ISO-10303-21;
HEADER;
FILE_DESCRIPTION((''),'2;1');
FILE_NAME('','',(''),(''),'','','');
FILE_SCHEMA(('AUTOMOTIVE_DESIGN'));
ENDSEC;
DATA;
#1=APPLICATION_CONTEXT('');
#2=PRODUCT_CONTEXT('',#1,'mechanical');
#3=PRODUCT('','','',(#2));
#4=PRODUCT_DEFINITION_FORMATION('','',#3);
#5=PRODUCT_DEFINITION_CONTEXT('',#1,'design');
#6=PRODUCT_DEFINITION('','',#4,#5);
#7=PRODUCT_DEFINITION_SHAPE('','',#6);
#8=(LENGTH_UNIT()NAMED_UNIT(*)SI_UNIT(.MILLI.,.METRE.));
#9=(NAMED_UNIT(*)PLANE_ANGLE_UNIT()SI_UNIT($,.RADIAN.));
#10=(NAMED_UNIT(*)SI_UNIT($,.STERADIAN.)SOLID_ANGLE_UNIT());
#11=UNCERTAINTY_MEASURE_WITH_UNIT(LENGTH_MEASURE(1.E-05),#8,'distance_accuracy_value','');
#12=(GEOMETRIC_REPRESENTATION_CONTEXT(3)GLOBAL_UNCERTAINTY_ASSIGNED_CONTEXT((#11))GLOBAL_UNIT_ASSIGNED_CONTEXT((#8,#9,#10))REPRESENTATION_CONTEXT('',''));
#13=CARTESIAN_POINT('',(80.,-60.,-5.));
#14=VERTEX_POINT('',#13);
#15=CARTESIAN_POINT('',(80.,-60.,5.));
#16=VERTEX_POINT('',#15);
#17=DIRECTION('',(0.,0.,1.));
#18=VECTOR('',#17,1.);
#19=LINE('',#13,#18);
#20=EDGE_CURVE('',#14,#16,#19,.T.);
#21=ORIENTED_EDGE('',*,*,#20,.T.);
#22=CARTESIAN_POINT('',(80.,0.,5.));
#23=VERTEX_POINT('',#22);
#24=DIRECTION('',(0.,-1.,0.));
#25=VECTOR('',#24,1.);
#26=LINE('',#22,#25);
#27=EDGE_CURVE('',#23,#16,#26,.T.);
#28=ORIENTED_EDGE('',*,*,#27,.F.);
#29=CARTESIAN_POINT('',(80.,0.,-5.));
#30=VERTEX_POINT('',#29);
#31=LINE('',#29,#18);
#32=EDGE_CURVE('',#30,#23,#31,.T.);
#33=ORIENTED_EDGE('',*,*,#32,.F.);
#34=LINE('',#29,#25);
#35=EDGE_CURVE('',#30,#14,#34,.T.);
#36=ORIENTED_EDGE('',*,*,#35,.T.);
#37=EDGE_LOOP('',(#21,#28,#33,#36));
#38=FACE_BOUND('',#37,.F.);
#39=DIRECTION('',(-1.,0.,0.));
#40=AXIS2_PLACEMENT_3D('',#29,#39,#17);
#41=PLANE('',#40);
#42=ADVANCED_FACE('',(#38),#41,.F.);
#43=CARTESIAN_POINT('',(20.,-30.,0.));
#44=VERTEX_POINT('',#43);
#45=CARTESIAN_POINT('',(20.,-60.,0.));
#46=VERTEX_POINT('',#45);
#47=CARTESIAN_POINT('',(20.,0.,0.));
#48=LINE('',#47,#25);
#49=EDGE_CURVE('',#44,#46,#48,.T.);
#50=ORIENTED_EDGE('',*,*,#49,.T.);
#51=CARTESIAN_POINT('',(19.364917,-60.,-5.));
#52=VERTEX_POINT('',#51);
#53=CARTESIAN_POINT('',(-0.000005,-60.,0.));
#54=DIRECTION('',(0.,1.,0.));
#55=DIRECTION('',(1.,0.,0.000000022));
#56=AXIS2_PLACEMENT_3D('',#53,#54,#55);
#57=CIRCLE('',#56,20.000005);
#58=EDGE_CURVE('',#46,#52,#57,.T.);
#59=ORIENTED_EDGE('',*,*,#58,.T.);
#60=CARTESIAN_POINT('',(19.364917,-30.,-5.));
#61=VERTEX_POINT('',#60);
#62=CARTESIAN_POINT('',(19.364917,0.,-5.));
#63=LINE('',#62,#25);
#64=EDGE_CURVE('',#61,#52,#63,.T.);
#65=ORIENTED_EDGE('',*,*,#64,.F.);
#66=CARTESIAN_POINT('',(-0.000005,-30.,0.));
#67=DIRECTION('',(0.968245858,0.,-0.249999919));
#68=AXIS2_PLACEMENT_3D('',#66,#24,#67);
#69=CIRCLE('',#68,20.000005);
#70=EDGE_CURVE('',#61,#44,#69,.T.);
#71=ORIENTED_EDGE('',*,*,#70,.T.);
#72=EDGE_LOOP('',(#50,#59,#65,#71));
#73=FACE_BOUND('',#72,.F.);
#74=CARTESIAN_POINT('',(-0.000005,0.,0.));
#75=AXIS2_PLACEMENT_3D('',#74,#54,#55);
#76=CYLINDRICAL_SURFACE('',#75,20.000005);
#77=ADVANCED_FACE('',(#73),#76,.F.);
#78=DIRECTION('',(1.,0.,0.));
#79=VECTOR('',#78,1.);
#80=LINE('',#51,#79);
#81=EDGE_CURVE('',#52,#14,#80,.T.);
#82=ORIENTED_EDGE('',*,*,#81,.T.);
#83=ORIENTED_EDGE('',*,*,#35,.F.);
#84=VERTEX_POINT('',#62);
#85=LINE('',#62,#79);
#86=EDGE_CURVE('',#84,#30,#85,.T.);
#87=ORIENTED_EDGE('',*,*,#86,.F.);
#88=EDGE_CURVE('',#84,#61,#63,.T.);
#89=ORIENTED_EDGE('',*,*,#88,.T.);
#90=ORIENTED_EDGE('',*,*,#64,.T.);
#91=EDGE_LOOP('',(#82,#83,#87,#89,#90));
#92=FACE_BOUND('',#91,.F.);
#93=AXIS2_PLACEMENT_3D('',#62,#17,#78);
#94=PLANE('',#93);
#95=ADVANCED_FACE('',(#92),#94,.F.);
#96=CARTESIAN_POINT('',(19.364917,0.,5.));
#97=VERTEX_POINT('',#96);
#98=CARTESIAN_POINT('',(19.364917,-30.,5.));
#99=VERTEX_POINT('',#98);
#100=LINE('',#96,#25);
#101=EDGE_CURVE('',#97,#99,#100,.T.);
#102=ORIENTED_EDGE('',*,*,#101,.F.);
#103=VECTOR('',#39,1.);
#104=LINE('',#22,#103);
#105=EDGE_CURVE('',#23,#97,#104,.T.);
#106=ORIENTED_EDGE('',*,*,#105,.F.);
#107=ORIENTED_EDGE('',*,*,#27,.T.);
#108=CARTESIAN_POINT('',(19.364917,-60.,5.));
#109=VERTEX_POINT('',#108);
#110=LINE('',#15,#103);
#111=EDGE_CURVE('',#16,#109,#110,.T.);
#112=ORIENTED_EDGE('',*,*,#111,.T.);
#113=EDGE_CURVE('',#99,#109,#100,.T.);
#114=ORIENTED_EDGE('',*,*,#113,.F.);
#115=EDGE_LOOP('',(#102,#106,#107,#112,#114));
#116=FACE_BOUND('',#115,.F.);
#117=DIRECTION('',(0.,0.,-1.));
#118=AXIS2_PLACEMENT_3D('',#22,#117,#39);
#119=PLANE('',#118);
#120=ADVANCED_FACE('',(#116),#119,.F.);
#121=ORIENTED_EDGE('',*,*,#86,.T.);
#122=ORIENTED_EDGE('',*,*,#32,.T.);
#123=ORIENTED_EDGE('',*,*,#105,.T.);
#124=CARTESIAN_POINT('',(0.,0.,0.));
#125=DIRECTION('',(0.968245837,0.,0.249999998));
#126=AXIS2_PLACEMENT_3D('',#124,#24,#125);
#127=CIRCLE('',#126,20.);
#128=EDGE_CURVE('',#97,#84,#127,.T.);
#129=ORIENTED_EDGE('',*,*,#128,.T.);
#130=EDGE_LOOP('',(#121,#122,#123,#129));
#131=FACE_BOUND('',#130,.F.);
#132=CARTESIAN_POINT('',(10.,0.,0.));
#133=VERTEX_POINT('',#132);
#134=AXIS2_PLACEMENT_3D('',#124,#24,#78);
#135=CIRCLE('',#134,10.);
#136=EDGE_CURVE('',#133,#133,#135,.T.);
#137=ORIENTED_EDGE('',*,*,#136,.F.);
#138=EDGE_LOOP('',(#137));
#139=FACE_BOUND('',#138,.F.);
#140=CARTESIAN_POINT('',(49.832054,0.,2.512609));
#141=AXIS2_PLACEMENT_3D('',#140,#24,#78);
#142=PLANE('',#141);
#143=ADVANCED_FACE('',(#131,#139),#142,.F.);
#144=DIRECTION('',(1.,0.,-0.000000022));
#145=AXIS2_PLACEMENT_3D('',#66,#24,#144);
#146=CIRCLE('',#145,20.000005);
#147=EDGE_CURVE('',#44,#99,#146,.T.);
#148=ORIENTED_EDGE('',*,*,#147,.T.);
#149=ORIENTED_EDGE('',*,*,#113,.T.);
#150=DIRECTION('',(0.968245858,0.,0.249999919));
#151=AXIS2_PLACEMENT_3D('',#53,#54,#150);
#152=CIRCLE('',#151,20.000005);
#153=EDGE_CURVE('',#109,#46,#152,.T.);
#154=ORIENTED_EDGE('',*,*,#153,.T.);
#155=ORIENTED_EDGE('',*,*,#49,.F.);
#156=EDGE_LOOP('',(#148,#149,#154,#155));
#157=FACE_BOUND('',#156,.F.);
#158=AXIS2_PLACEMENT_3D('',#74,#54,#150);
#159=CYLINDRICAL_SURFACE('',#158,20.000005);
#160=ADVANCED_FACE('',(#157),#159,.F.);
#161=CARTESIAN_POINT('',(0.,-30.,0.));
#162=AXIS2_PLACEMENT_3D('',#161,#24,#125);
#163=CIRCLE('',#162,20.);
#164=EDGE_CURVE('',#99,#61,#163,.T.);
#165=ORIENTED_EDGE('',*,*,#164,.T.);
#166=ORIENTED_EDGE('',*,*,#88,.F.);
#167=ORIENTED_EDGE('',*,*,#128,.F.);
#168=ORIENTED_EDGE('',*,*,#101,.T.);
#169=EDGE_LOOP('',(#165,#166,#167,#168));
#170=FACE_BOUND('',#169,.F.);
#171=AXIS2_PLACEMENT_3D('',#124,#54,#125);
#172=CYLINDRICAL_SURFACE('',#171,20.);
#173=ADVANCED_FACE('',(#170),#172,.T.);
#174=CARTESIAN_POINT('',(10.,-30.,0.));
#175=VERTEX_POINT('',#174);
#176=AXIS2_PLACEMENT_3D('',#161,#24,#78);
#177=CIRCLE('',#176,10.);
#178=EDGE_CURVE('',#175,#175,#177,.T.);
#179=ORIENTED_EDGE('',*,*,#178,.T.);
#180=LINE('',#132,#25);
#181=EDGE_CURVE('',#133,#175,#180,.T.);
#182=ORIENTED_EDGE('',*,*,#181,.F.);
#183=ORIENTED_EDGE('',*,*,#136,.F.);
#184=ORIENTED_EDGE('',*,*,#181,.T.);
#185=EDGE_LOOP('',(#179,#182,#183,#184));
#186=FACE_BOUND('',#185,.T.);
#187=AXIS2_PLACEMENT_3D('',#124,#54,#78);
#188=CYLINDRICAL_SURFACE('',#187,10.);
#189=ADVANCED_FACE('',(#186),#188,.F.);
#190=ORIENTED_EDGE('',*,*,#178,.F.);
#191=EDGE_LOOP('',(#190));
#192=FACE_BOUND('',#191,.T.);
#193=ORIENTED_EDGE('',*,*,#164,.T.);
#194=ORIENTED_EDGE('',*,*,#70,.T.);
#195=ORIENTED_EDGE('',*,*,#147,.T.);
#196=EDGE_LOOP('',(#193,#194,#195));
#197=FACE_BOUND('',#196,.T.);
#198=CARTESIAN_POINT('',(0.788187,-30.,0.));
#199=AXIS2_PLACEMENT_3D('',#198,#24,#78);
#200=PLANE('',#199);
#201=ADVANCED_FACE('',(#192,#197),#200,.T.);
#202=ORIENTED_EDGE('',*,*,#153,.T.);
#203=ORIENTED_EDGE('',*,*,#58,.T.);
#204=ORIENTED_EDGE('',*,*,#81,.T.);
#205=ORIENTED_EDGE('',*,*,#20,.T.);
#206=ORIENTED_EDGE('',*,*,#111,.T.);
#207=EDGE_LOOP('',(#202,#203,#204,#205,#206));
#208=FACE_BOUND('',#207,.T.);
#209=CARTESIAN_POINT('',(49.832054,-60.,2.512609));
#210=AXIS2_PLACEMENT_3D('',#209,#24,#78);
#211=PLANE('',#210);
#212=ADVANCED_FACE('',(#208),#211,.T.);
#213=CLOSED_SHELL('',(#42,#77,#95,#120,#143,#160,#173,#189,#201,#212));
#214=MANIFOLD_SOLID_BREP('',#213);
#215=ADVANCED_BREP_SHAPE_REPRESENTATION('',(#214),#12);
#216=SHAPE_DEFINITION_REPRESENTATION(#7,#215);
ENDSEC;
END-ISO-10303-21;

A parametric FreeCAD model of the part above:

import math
import FreeCAD as App
import Part
import Sketcher

V = App.Vector
Q = App.Units.Quantity

doc = App.newDocument("Part")
params = doc.addObject("Spreadsheet::Sheet", "Params")
for row, (alias, value) in enumerate([
    ("sketch1_diameter", "20 mm"),
    ("sketch1_radius", "20 mm"),
    ("pad1_length", "30 mm"),
    ("sketch2_height", "10 mm"),
    ("pad2_length", "60 mm"),
], start=1):
    params.set(f"A{row}", alias)
    params.set(f"B{row}", "=" + value)
    params.setAlias(f"B{row}", alias)

body = doc.addObject("PartDesign::Body", "Body")

# Sketch on XZ plane
sketch1 = doc.addObject("Sketcher::SketchObject", "Sketch")
body.addObject(sketch1)
sketch1.AttachmentSupport = (doc.XZ_Plane, [""])
sketch1.MapMode = "FlatFace"
sketch1.addGeometry([
    Part.ArcOfCircle(Part.Circle(V(0, 0, 0), V(0, 0, 1), 20), math.radians(-14.48), math.radians(0)),
    Part.ArcOfCircle(Part.Circle(V(0, 0, 0), V(0, 0, 1), 20), math.radians(0), math.radians(14.48)),
    Part.ArcOfCircle(Part.Circle(V(0, 0, 0), V(0, 0, 1), 20), math.radians(14), math.radians(346)),
    Part.Circle(V(0, 0, 0), V(0, 0, 1), 10),
], False)
sketch1.addConstraint([
    Sketcher.Constraint("Tangent", 0, 2, 1, 1),
    Sketcher.Constraint("Tangent", 1, 2, 2, 1),
    Sketcher.Constraint("Tangent", 2, 2, 0, 1),
    Sketcher.Constraint("Coincident", 0, 3, -1, 1),
    Sketcher.Constraint("Coincident", 3, 3, -1, 1),
    Sketcher.Constraint("PointOnObject", 0, 2, -1),
    Sketcher.Constraint("Vertical", 1, 2, 2, 2),
    Sketcher.Constraint("Diameter", 3, Q("20 mm")),
    Sketcher.Constraint("Radius", 2, Q("20 mm")),
    Sketcher.Constraint("DistanceY", -1, 1, 1, 2, Q("5 mm")),
])
sketch1.setExpression("Constraints[7]", "Params.sketch1_diameter")
sketch1.setExpression("Constraints[8]", "Params.sketch1_radius")
pad1 = doc.addObject("PartDesign::Pad", "Pad")
body.addObject(pad1)
pad1.Profile = sketch1
pad1.setExpression("Length", "Params.pad1_length")

# Sketch on XZ plane
sketch2 = doc.addObject("Sketcher::SketchObject", "Sketch001")
body.addObject(sketch2)
sketch2.AttachmentSupport = (doc.XZ_Plane, [""])
sketch2.MapMode = "FlatFace"
sketch2.addGeometry([
    Part.ArcOfCircle(Part.Circle(V(0, 0, 0), V(0, 0, 1), 20), math.radians(0), math.radians(14.48)),  # 0
    Part.ArcOfCircle(Part.Circle(V(0, 0, 0), V(0, 0, 1), 20), math.radians(-14.48), math.radians(0)),  # 1
    Part.LineSegment(V(19, -5, 0), V(80, -5, 0)),  # 2
    Part.LineSegment(V(80, -5, 0), V(80, 5, 0)),  # 3
    Part.LineSegment(V(80, 5, 0), V(19, 5, 0)),  # 4
], False)
sketch2.addConstraint([
    Sketcher.Constraint("Tangent", 0, 1, 1, 2),
    Sketcher.Constraint("Coincident", 1, 1, 2, 1),
    Sketcher.Constraint("Coincident", 2, 2, 3, 1),
    Sketcher.Constraint("Coincident", 3, 2, 4, 1),
    Sketcher.Constraint("Coincident", 4, 2, 0, 2),
    Sketcher.Constraint("Horizontal", 2),
    Sketcher.Constraint("Vertical", 3),
    Sketcher.Constraint("Horizontal", 4),
    Sketcher.Constraint("Coincident", 0, 3, -1, 1),
    Sketcher.Constraint("Equal", 0, 1),
    Sketcher.Constraint("PointOnObject", 0, 1, -1),
    Sketcher.Constraint("Vertical", 1, 1, 4, 2),
    Sketcher.Constraint("DistanceY", 3, 1, 3, 2, Q("10 mm")),
    Sketcher.Constraint("DistanceX", -1, 1, 0, 1, Q("20 mm")),
    Sketcher.Constraint("DistanceX", -1, 1, 2, 2, Q("80 mm")),
])
sketch2.setExpression("Constraints[12]", "Params.sketch2_height")
pad2 = doc.addObject("PartDesign::Pad", "Pad001")
body.addObject(pad2)
pad2.Profile = sketch2
pad2.setExpression("Length", "Params.pad2_length")

doc.recompute()
